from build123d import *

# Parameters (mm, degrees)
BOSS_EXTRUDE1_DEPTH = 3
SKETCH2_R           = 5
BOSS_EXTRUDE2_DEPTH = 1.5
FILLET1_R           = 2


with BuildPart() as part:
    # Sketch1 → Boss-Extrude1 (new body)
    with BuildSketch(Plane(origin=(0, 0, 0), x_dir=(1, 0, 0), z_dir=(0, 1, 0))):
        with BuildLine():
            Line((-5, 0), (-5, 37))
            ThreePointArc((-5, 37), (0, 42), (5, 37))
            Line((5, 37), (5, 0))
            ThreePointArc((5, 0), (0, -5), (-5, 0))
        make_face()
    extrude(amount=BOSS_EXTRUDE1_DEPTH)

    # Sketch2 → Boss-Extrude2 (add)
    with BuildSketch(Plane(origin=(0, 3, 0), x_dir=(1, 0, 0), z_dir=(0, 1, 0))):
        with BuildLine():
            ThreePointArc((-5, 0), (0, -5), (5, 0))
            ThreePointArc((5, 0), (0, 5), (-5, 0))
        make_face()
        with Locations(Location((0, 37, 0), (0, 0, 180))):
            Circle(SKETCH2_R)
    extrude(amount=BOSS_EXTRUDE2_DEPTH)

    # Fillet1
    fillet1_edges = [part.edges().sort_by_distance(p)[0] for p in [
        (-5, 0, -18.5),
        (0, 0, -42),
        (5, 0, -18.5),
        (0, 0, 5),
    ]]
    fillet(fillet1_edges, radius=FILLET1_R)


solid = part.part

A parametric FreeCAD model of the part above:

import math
import FreeCAD as App
import Part
import Sketcher
from FreeCAD import Vector


def edges_at(feature, points):
    """Names of the edges that pass closest to the given points."""
    edges = feature.Shape.Edges
    near = lambda p: min(range(len(edges)), key=lambda i: edges[i].distToShape(Part.Vertex(*p))[0])
    return sorted({f"Edge{near(p) + 1}" for p in points})

doc = App.newDocument("Part")
body = doc.addObject("PartDesign::Body", "Body")

sketch1 = body.newObject("Sketcher::SketchObject", "Sketch")
sketch1.AttachmentSupport = (doc.getObject("XZ_Plane"), [""])
sketch1.MapMode = "FlatFace"
sketch1.addGeometry([
    Part.LineSegment(Vector(-5, -37, 0), Vector(-5, 0, 0)),
    Part.ArcOfCircle(Part.Circle(Vector(0, 0, 0), Vector(0, 0, 1), 5), math.radians(0), math.radians(180)),
    Part.LineSegment(Vector(5, 0, 0), Vector(5, -37, 0)),
    Part.ArcOfCircle(Part.Circle(Vector(0, -37, 0), Vector(0, 0, 1), 5), math.radians(180), math.radians(360)),
], False)
sketch1.addConstraint([
    Sketcher.Constraint("Tangent", 0, 2, 1, 2),
    Sketcher.Constraint("Tangent", 1, 1, 2, 1),
    Sketcher.Constraint("Tangent", 2, 2, 3, 2),
    Sketcher.Constraint("Tangent", 3, 1, 0, 1),
    Sketcher.Constraint("Vertical", 0),
    Sketcher.Constraint("Vertical", 2),
    Sketcher.Constraint("Coincident", 1, 3, -1, 1),
    Sketcher.Constraint("Radius", 1, 5.0),
    Sketcher.Constraint("DistanceY", 0, 1, 0, 2, 37.0),
])
pad1 = body.newObject("PartDesign::Pad", "Pad")
pad1.Profile = sketch1
pad1.Length = 3
pad1.Reversed = True

sketch2 = body.newObject("Sketcher::SketchObject", "Sketch001")
sketch2.AttachmentSupport = (doc.getObject("XZ_Plane"), [""])
sketch2.MapMode = "FlatFace"
sketch2.AttachmentOffset = App.Placement(Vector(0, 0, -3), App.Rotation())
sketch2.addGeometry([
    Part.Circle(Vector(0, 0, 0), Vector(0, 0, 1), 5),
    Part.Circle(Vector(0, -37, 0), Vector(0, 0, 1), 5),
], False)
sketch2.addConstraint([
    Sketcher.Constraint("Coincident", 0, 3, -1, 1),
    Sketcher.Constraint("Equal", 0, 1),
    Sketcher.Constraint("PointOnObject", 1, 3, -2),
    Sketcher.Constraint("Diameter", 0, 10.0),
    Sketcher.Constraint("DistanceY", 1, 3, -1, 1, 37.0),
])
pad2 = body.newObject("PartDesign::Pad", "Pad001")
pad2.Profile = sketch2
pad2.Length = 1.5
pad2.Reversed = True
doc.recompute()

fillet = body.newObject("PartDesign::Fillet", "Fillet")
fillet.Base = (pad2, edges_at(pad2, [
    (-5, 0, -18.5),
    (0, 0, -42),
    (5, 0, -18.5),
    (0, 0, 5),
]))
fillet.Radius = 2

doc.recompute()
